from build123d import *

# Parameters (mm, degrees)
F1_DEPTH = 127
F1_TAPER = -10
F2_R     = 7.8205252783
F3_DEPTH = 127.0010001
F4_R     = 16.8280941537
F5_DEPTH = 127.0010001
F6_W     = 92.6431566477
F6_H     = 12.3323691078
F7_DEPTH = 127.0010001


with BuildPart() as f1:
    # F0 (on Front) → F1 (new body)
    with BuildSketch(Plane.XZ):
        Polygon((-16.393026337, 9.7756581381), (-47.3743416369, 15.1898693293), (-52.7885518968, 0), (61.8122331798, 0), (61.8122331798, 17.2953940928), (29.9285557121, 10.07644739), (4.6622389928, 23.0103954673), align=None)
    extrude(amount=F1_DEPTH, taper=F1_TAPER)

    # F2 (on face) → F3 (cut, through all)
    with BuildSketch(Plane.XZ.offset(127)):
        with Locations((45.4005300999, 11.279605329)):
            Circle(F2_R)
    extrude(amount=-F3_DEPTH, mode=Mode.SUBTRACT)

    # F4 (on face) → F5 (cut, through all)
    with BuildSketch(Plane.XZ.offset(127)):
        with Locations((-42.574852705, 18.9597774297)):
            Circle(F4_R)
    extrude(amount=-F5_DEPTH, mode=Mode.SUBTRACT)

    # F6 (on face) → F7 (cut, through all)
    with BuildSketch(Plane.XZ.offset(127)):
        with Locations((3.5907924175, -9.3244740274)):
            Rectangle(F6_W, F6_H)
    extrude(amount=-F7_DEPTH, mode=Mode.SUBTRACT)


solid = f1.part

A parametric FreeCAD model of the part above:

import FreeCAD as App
import Part
import Sketcher

V = App.Vector
Q = App.Units.Quantity

doc = App.newDocument("Part")
body = doc.addObject("PartDesign::Body", "Body")

sketch1 = body.newObject("Sketcher::SketchObject", "Sketch")
sketch1.AttachmentSupport = (doc.getObject("XZ_Plane"), [""])
sketch1.MapMode = "FlatFace"
sketch1.addGeometry([
    Part.LineSegment(V(-16, 10, 0), V(-47, 15, 0)),
    Part.LineSegment(V(-47, 15, 0), V(-53, 0, 0)),
    Part.LineSegment(V(-53, 0, 0), V(62, 0, 0)),
    Part.LineSegment(V(62, 0, 0), V(62, 17, 0)),
    Part.LineSegment(V(62, 17, 0), V(30, 10, 0)),
    Part.LineSegment(V(30, 10, 0), V(5, 23, 0)),
    Part.LineSegment(V(5, 23, 0), V(-16, 10, 0)),
], False)
sketch1.addConstraint([
    Sketcher.Constraint("Coincident", 0, 2, 1, 1),
    Sketcher.Constraint("Coincident", 1, 2, 2, 1),
    Sketcher.Constraint("Coincident", 2, 2, 3, 1),
    Sketcher.Constraint("Coincident", 3, 2, 4, 1),
    Sketcher.Constraint("Coincident", 4, 2, 5, 1),
    Sketcher.Constraint("Coincident", 5, 2, 6, 1),
    Sketcher.Constraint("Coincident", 6, 2, 0, 1),
    Sketcher.Constraint("Horizontal", 2),
    Sketcher.Constraint("Vertical", 3),
    Sketcher.Constraint("PointOnObject", 1, 2, -1),
    Sketcher.Constraint("DistanceY", 3, 2, 5, 2, Q("0.2250001 in")),
    Sketcher.Constraint("DistanceX", 2, 1, 2, 2, 114.600785),
    Sketcher.Constraint("DistanceY", 3, 1, 3, 2, 17.295394),
    Sketcher.Constraint("DistanceX", 0, 2, -1, 1, 47.374342),
    Sketcher.Constraint("DistanceY", -1, 1, 0, 2, 15.189869),
    Sketcher.Constraint("DistanceX", 1, 2, -1, 1, 52.788552),
    Sketcher.Constraint("DistanceX", -1, 1, 5, 2, 4.662239),
    Sketcher.Constraint("DistanceY", -1, 1, 6, 2, 9.775658),
    Sketcher.Constraint("DistanceY", 4, 2, 0, 2, 5.113422),
    Sketcher.Constraint("DistanceX", 6, 2, 3, 2, 78.20526),
    Sketcher.Constraint("Distance", 4, 32.690703),
])
pad1 = body.newObject("PartDesign::Pad", "Pad")
pad1.Profile = sketch1
pad1.Length = Q("5 in")
pad1.TaperAngle = 10

sketch2 = body.newObject("Sketcher::SketchObject", "Sketch001")
sketch2.AttachmentSupport = (doc.getObject("XZ_Plane"), [""])
sketch2.MapMode = "FlatFace"
sketch2.AttachmentOffset = App.Placement(V(0, 0, 5 * 25.4), App.Rotation())
sketch2.addGeometry(Part.Circle(V(45, 11, 0), V(0, 0, 1), 8), False)
sketch2.addConstraint([
    Sketcher.Constraint("Diameter", 0, 15.641051),
    Sketcher.Constraint("DistanceX", -1, 1, 0, 3, 45.40053),
    Sketcher.Constraint("DistanceY", -1, 1, 0, 3, 11.279605),
])
pocket1 = body.newObject("PartDesign::Pocket", "Pocket")
pocket1.Profile = sketch2
pocket1.Type = "ThroughAll"

sketch3 = body.newObject("Sketcher::SketchObject", "Sketch002")
sketch3.AttachmentSupport = (doc.getObject("XZ_Plane"), [""])
sketch3.MapMode = "FlatFace"
sketch3.AttachmentOffset = App.Placement(V(0, 0, 5 * 25.4), App.Rotation())
sketch3.addGeometry(Part.Circle(V(-43, 19, 0), V(0, 0, 1), 17), False)
sketch3.addConstraint([
    Sketcher.Constraint("Diameter", 0, 33.656188),
    Sketcher.Constraint("DistanceX", 0, 3, -1, 1, 42.574853),
    Sketcher.Constraint("DistanceY", -1, 1, 0, 3, 18.959777),
])
pocket2 = body.newObject("PartDesign::Pocket", "Pocket001")
pocket2.Profile = sketch3
pocket2.Type = "ThroughAll"

sketch4 = body.newObject("Sketcher::SketchObject", "Sketch003")
sketch4.AttachmentSupport = (doc.getObject("XZ_Plane"), [""])
sketch4.MapMode = "FlatFace"
sketch4.AttachmentOffset = App.Placement(V(0, 0, 5 * 25.4), App.Rotation())
sketch4.addGeometry([
    Part.LineSegment(V(-43, -3, 0), V(-43, -15, 0)),
    Part.LineSegment(V(-43, -15, 0), V(50, -15, 0)),
    Part.LineSegment(V(50, -15, 0), V(50, -3, 0)),
    Part.LineSegment(V(50, -3, 0), V(-43, -3, 0)),
], False)
sketch4.addConstraint([
    Sketcher.Constraint("Coincident", 0, 2, 1, 1),
    Sketcher.Constraint("Coincident", 1, 2, 2, 1),
    Sketcher.Constraint("Coincident", 2, 2, 3, 1),
    Sketcher.Constraint("Coincident", 3, 2, 0, 1),
    Sketcher.Constraint("Vertical", 0),
    Sketcher.Constraint("Horizontal", 1),
    Sketcher.Constraint("Vertical", 2),
    Sketcher.Constraint("Horizontal", 3),
    Sketcher.Constraint("DistanceY", 0, 2, 0, 1, 12.332369),
    Sketcher.Constraint("DistanceX", 1, 1, 1, 2, 92.643157),
    Sketcher.Constraint("DistanceY", 0, 2, -1, 1, 15.490659),
    Sketcher.Constraint("DistanceX", -1, 1, 1, 2, 49.912371),
])
pocket3 = body.newObject("PartDesign::Pocket", "Pocket002")
pocket3.Profile = sketch4
pocket3.Type = "ThroughAll"

doc.recompute()
